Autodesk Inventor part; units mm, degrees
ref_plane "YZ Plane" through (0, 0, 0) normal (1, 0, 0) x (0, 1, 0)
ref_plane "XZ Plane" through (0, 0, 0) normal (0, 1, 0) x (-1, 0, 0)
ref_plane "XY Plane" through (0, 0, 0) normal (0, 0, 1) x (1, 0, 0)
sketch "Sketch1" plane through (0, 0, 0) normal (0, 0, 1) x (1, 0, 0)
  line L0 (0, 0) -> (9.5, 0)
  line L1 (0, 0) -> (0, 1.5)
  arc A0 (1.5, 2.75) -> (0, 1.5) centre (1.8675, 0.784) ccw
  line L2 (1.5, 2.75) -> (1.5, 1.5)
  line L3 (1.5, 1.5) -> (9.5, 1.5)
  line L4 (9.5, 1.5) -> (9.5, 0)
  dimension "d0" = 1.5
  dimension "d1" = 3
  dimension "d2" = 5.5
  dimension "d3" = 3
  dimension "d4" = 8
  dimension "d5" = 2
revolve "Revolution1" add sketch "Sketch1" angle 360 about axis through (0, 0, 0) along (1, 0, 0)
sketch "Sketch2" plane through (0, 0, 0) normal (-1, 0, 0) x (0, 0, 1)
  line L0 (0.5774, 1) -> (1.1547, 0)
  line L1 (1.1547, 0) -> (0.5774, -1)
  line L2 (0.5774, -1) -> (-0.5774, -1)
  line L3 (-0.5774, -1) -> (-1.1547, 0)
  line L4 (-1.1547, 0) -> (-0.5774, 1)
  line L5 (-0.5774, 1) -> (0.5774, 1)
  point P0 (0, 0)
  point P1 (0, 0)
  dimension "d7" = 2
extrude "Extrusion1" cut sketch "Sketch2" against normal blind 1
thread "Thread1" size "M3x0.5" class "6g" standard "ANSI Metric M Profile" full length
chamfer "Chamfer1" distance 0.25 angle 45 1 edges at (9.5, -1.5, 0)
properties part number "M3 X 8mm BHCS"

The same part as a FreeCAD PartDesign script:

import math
import FreeCAD as App
import Part
import Sketcher

V = App.Vector


def edges_at(feature, points):
    """Names of the edges that pass closest to the given points."""
    edges = feature.Shape.Edges
    near = lambda p: min(range(len(edges)), key=lambda i: edges[i].distToShape(Part.Vertex(*p))[0])
    return sorted({f"Edge{near(p) + 1}" for p in points})

doc = App.newDocument("Part")
body = doc.addObject("PartDesign::Body", "Body")

sketch1 = doc.addObject("Sketcher::SketchObject", "Sketch")
body.addObject(sketch1)
sketch1.AttachmentSupport = (doc.XY_Plane, [""])
sketch1.MapMode = "FlatFace"
sketch1.addGeometry([
    Part.LineSegment(V(0, 1.5, 0), V(0, 0, 0)),
    Part.LineSegment(V(0, 0, 0), V(9.5, 0, 0)),
    Part.LineSegment(V(9.5, 0, 0), V(9.5, 1.5, 0)),
    Part.LineSegment(V(9.5, 1.5, 0), V(1.5, 1.5, 0)),
    Part.LineSegment(V(1.5, 1.5, 0), V(1.5, 2.8, 0)),
    Part.ArcOfCircle(Part.Circle(V(1.9, 0.8, 0), V(0, 0, 1), 2), math.radians(101), math.radians(159)),
], False)
sketch1.addConstraint([
    Sketcher.Constraint("Coincident", 0, 2, 1, 1),
    Sketcher.Constraint("Coincident", 1, 2, 2, 1),
    Sketcher.Constraint("Coincident", 2, 2, 3, 1),
    Sketcher.Constraint("Coincident", 3, 2, 4, 1),
    Sketcher.Constraint("Coincident", 4, 2, 5, 1),
    Sketcher.Constraint("Coincident", 5, 2, 0, 1),
    Sketcher.Constraint("Vertical", 0),
    Sketcher.Constraint("Horizontal", 1),
    Sketcher.Constraint("Vertical", 2),
    Sketcher.Constraint("Horizontal", 3),
    Sketcher.Constraint("Vertical", 4),
    Sketcher.Constraint("Coincident", 0, 2, -1, 1),
    Sketcher.Constraint("Horizontal", 3, 2, 5, 2),
    Sketcher.Constraint("Radius", 5, 2.0),
    Sketcher.Constraint("DistanceX", 3, 2, 3, 1, 8.0),
    Sketcher.Constraint("DistanceY", 0, 2, 0, 1, 1.5),
    Sketcher.Constraint("DistanceX", -1, 1, 3, 2, 1.5),
    Sketcher.Constraint("DistanceY", 4, 1, 4, 2, 1.25),
])
revolution = doc.addObject("PartDesign::Revolution", "Revolution")
body.addObject(revolution)
revolution.Profile = sketch1
revolution.ReferenceAxis = (sketch1, ["H_Axis"])
revolution.Angle = 360

sketch2 = doc.addObject("Sketcher::SketchObject", "Sketch001")
body.addObject(sketch2)
sketch2.AttachmentSupport = (doc.YZ_Plane, [""])
sketch2.MapMode = "FlatFace"
sketch2.addGeometry([
    Part.LineSegment(V(0, 1.2, 0), V(1, 0.6, 0)),
    Part.LineSegment(V(1, 0.6, 0), V(1, -0.6, 0)),
    Part.LineSegment(V(1, -0.6, 0), V(0, -1.2, 0)),
    Part.LineSegment(V(0, -1.2, 0), V(-1, -0.6, 0)),
    Part.LineSegment(V(-1, -0.6, 0), V(-1, 0.6, 0)),
    Part.LineSegment(V(-1, 0.6, 0), V(0, 1.2, 0)),
], False)
sketch2.addConstraint([
    Sketcher.Constraint("Coincident", 0, 2, 1, 1),
    Sketcher.Constraint("Coincident", 1, 2, 2, 1),
    Sketcher.Constraint("Coincident", 2, 2, 3, 1),
    Sketcher.Constraint("Coincident", 3, 2, 4, 1),
    Sketcher.Constraint("Coincident", 4, 2, 5, 1),
    Sketcher.Constraint("Coincident", 5, 2, 0, 1),
    Sketcher.Constraint("Vertical", 1),
    Sketcher.Constraint("Vertical", 4),
    Sketcher.Constraint("Symmetric", 0, 2, 3, 2, -1, 1),
    Sketcher.Constraint("Symmetric", 2, 2, 5, 2, -1, 1),
    Sketcher.Constraint("PointOnObject", 2, 2, -2),
    Sketcher.Constraint("Parallel", 2, 5),
    Sketcher.Constraint("Horizontal", 1, 2, 3, 2),
    Sketcher.Constraint("DistanceX", 3, 2, 1, 2, 2.0),
    Sketcher.Constraint("DistanceY", 1, 2, 1, 1, 1.1548),
    Sketcher.Constraint("DistanceY", 2, 2, 0, 2, 1.732),
])
pocket1 = doc.addObject("PartDesign::Pocket", "Pocket")
body.addObject(pocket1)
pocket1.Profile = sketch2
pocket1.Length = 1
pocket1.Reversed = True
doc.recompute()

chamfer = doc.addObject("PartDesign::Chamfer", "Chamfer")
body.addObject(chamfer)
chamfer.Base = (pocket1, edges_at(pocket1, [(9.5, -1.5, 0)]))
chamfer.Size = 0.25

doc.recompute()
